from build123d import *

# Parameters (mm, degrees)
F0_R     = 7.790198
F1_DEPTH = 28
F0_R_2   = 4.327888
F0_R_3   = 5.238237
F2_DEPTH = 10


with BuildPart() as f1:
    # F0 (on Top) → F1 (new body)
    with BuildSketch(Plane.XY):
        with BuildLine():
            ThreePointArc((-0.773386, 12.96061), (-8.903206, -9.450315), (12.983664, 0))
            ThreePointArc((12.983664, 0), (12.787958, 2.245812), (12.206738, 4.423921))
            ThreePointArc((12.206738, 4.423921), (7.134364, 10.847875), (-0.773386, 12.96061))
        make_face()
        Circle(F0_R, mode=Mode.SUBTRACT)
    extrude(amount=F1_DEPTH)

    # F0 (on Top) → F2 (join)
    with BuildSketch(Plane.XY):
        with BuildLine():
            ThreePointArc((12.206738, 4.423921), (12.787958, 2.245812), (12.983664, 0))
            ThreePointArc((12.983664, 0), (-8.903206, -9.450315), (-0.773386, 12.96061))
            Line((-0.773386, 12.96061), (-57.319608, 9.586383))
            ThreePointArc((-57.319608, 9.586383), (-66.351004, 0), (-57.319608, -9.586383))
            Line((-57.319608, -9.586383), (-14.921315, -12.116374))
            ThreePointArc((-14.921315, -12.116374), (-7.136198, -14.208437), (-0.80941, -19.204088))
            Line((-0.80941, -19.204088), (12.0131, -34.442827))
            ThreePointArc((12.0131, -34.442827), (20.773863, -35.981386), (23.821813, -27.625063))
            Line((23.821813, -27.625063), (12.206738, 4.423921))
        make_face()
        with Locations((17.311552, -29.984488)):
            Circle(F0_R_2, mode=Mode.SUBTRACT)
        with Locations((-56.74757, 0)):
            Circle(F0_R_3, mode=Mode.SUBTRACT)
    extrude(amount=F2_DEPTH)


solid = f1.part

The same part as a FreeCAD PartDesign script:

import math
import FreeCAD as App
import Part
import Sketcher

doc = App.newDocument("Part")
body = doc.addObject("PartDesign::Body", "Body")

# Sketch on XY plane
sketch1 = body.newObject("Sketcher::SketchObject", "Sketch")
sketch1.AttachmentSupport = (doc.getObject("XY_Plane"), [""])
sketch1.MapMode = "FlatFace"
sketch1.addGeometry([
    Part.ArcOfCircle(Part.Circle(App.Vector(0, 0, 0), App.Vector(0, 0, 1), 12.983664), math.radians(93.414906), math.radians(359.999999)),
    Part.ArcOfCircle(Part.Circle(App.Vector(0.000028, 0.000005, 0), App.Vector(0, 0, 1), 12.983636), math.radians(-0.000021), math.radians(19.921365)),
    Part.ArcOfCircle(Part.Circle(App.Vector(0.000001, 0.000001, 0), App.Vector(0, 0, 1), 12.983663), math.radians(19.921338), math.radians(93.41491)),
    Part.Circle(App.Vector(0, 0, 0), App.Vector(0, 0, 1), 7.790198),
], False)
sketch1.addConstraint([
    Sketcher.Constraint("Coincident", 0, 2, 1, 1),
    Sketcher.Constraint("Coincident", 1, 2, 2, 1),
    Sketcher.Constraint("Coincident", 2, 2, 0, 1),
    Sketcher.Constraint("Coincident", 0, 3, -1, 1),
    Sketcher.Constraint("Coincident", 2, 3, -1, 1),
    Sketcher.Constraint("Coincident", 3, 3, -1, 1),
    Sketcher.Constraint("PointOnObject", 0, 2, -1),
    Sketcher.Constraint("Diameter", 3, 15.580396),
    Sketcher.Constraint("Radius", 0, 12.983664),
    Sketcher.Constraint("Radius", 1, 12.983636),
    Sketcher.Constraint("DistanceY", -1, 1, 1, 2, 4.423921),
    Sketcher.Constraint("DistanceY", -1, 1, 2, 2, 12.96061),
])
pad1 = body.newObject("PartDesign::Pad", "Pad")
pad1.Profile = sketch1
pad1.Length = 28

# Sketch on XY plane
sketch2 = body.newObject("Sketcher::SketchObject", "Sketch001")
sketch2.AttachmentSupport = (doc.getObject("XY_Plane"), [""])
sketch2.MapMode = "FlatFace"
sketch2.addGeometry([
    Part.ArcOfCircle(Part.Circle(App.Vector(0.000028, 0.000005, 0), App.Vector(0, 0, 1), 12.983636), math.radians(-0.000021), math.radians(19.921365)),  # 0
    Part.ArcOfCircle(Part.Circle(App.Vector(0, 0, 0), App.Vector(0, 0, 1), 12.983664), math.radians(93.414906), math.radians(359.999999)),  # 1
    Part.LineSegment(App.Vector(-0.773386, 12.96061, 0), App.Vector(-57.319608, 9.586383, 0)),  # 2
    Part.ArcOfCircle(Part.Circle(App.Vector(-56.747569, 0, 0), App.Vector(0, 0, 1), 9.603435), math.radians(93.414908), math.radians(266.585092)),  # 3
    Part.LineSegment(App.Vector(-57.319608, -9.586383, 0), App.Vector(-14.921315, -12.116374, 0)),  # 4
    Part.ArcOfCircle(Part.Circle(App.Vector(-16.112638, -32.080867, 0), App.Vector(0, 0, 1), 20.000005), math.radians(40.078665), math.radians(86.58509)),  # 5
    Part.LineSegment(App.Vector(-0.80941, -19.204088, 0), App.Vector(12.0131, -34.442827, 0)),  # 6
    Part.ArcOfCircle(Part.Circle(App.Vector(17.311552, -29.984488, 0), App.Vector(0, 0, 1), 6.924621), math.radians(-139.921342), math.radians(19.921344)),  # 7
    Part.LineSegment(App.Vector(23.821813, -27.625063, 0), App.Vector(12.206738, 4.423921, 0)),  # 8
    Part.Circle(App.Vector(17.311552, -29.984488, 0), App.Vector(0, 0, 1), 4.327888),  # 9
    Part.Circle(App.Vector(-56.74757, 0, 0), App.Vector(0, 0, 1), 5.238237),  # 10
], False)
sketch2.addConstraint([
    Sketcher.Constraint("Tangent", 0, 1, 1, 2),
    Sketcher.Constraint("Tangent", 1, 1, 2, 1),
    Sketcher.Constraint("Tangent", 2, 2, 3, 1),
    Sketcher.Constraint("Tangent", 3, 2, 4, 1),
    Sketcher.Constraint("Tangent", 4, 2, 5, 2),
    Sketcher.Constraint("Tangent", 5, 1, 6, 1),
    Sketcher.Constraint("Tangent", 6, 2, 7, 1),
    Sketcher.Constraint("Tangent", 7, 2, 8, 1),
    Sketcher.Constraint("Tangent", 8, 2, 0, 2),
    Sketcher.Constraint("Coincident", 1, 3, -1, 1),
    Sketcher.Constraint("Coincident", 9, 3, 7, 3),
    Sketcher.Constraint("Coincident", 10, 3, 3, 3),
    Sketcher.Constraint("Symmetric", 2, 2, 3, 2, -1),
    Sketcher.Constraint("PointOnObject", 0, 1, -1),
    Sketcher.Constraint("Radius", 7, 6.924621),
    Sketcher.Constraint("Diameter", 9, 8.655776),
    Sketcher.Constraint("Diameter", 10, 10.476474),
    Sketcher.Constraint("Radius", 0, 12.983636),
    Sketcher.Constraint("Radius", 1, 12.983664),
    Sketcher.Constraint("Radius", 3, 9.603435),
    Sketcher.Constraint("Radius", 5, 20.000005),
    Sketcher.Constraint("DistanceX", -1, 1, 6, 2, 12.0131),
    Sketcher.Constraint("DistanceY", 9, 3, 1, 1, 42.945098),
    Sketcher.Constraint("DistanceY", 9, 3, 5, 1, 10.7804),
    Sketcher.Constraint("Distance", 4, 42.473711),
])
pad2 = body.newObject("PartDesign::Pad", "Pad001")
pad2.Profile = sketch2
pad2.Length = 10

doc.recompute()
